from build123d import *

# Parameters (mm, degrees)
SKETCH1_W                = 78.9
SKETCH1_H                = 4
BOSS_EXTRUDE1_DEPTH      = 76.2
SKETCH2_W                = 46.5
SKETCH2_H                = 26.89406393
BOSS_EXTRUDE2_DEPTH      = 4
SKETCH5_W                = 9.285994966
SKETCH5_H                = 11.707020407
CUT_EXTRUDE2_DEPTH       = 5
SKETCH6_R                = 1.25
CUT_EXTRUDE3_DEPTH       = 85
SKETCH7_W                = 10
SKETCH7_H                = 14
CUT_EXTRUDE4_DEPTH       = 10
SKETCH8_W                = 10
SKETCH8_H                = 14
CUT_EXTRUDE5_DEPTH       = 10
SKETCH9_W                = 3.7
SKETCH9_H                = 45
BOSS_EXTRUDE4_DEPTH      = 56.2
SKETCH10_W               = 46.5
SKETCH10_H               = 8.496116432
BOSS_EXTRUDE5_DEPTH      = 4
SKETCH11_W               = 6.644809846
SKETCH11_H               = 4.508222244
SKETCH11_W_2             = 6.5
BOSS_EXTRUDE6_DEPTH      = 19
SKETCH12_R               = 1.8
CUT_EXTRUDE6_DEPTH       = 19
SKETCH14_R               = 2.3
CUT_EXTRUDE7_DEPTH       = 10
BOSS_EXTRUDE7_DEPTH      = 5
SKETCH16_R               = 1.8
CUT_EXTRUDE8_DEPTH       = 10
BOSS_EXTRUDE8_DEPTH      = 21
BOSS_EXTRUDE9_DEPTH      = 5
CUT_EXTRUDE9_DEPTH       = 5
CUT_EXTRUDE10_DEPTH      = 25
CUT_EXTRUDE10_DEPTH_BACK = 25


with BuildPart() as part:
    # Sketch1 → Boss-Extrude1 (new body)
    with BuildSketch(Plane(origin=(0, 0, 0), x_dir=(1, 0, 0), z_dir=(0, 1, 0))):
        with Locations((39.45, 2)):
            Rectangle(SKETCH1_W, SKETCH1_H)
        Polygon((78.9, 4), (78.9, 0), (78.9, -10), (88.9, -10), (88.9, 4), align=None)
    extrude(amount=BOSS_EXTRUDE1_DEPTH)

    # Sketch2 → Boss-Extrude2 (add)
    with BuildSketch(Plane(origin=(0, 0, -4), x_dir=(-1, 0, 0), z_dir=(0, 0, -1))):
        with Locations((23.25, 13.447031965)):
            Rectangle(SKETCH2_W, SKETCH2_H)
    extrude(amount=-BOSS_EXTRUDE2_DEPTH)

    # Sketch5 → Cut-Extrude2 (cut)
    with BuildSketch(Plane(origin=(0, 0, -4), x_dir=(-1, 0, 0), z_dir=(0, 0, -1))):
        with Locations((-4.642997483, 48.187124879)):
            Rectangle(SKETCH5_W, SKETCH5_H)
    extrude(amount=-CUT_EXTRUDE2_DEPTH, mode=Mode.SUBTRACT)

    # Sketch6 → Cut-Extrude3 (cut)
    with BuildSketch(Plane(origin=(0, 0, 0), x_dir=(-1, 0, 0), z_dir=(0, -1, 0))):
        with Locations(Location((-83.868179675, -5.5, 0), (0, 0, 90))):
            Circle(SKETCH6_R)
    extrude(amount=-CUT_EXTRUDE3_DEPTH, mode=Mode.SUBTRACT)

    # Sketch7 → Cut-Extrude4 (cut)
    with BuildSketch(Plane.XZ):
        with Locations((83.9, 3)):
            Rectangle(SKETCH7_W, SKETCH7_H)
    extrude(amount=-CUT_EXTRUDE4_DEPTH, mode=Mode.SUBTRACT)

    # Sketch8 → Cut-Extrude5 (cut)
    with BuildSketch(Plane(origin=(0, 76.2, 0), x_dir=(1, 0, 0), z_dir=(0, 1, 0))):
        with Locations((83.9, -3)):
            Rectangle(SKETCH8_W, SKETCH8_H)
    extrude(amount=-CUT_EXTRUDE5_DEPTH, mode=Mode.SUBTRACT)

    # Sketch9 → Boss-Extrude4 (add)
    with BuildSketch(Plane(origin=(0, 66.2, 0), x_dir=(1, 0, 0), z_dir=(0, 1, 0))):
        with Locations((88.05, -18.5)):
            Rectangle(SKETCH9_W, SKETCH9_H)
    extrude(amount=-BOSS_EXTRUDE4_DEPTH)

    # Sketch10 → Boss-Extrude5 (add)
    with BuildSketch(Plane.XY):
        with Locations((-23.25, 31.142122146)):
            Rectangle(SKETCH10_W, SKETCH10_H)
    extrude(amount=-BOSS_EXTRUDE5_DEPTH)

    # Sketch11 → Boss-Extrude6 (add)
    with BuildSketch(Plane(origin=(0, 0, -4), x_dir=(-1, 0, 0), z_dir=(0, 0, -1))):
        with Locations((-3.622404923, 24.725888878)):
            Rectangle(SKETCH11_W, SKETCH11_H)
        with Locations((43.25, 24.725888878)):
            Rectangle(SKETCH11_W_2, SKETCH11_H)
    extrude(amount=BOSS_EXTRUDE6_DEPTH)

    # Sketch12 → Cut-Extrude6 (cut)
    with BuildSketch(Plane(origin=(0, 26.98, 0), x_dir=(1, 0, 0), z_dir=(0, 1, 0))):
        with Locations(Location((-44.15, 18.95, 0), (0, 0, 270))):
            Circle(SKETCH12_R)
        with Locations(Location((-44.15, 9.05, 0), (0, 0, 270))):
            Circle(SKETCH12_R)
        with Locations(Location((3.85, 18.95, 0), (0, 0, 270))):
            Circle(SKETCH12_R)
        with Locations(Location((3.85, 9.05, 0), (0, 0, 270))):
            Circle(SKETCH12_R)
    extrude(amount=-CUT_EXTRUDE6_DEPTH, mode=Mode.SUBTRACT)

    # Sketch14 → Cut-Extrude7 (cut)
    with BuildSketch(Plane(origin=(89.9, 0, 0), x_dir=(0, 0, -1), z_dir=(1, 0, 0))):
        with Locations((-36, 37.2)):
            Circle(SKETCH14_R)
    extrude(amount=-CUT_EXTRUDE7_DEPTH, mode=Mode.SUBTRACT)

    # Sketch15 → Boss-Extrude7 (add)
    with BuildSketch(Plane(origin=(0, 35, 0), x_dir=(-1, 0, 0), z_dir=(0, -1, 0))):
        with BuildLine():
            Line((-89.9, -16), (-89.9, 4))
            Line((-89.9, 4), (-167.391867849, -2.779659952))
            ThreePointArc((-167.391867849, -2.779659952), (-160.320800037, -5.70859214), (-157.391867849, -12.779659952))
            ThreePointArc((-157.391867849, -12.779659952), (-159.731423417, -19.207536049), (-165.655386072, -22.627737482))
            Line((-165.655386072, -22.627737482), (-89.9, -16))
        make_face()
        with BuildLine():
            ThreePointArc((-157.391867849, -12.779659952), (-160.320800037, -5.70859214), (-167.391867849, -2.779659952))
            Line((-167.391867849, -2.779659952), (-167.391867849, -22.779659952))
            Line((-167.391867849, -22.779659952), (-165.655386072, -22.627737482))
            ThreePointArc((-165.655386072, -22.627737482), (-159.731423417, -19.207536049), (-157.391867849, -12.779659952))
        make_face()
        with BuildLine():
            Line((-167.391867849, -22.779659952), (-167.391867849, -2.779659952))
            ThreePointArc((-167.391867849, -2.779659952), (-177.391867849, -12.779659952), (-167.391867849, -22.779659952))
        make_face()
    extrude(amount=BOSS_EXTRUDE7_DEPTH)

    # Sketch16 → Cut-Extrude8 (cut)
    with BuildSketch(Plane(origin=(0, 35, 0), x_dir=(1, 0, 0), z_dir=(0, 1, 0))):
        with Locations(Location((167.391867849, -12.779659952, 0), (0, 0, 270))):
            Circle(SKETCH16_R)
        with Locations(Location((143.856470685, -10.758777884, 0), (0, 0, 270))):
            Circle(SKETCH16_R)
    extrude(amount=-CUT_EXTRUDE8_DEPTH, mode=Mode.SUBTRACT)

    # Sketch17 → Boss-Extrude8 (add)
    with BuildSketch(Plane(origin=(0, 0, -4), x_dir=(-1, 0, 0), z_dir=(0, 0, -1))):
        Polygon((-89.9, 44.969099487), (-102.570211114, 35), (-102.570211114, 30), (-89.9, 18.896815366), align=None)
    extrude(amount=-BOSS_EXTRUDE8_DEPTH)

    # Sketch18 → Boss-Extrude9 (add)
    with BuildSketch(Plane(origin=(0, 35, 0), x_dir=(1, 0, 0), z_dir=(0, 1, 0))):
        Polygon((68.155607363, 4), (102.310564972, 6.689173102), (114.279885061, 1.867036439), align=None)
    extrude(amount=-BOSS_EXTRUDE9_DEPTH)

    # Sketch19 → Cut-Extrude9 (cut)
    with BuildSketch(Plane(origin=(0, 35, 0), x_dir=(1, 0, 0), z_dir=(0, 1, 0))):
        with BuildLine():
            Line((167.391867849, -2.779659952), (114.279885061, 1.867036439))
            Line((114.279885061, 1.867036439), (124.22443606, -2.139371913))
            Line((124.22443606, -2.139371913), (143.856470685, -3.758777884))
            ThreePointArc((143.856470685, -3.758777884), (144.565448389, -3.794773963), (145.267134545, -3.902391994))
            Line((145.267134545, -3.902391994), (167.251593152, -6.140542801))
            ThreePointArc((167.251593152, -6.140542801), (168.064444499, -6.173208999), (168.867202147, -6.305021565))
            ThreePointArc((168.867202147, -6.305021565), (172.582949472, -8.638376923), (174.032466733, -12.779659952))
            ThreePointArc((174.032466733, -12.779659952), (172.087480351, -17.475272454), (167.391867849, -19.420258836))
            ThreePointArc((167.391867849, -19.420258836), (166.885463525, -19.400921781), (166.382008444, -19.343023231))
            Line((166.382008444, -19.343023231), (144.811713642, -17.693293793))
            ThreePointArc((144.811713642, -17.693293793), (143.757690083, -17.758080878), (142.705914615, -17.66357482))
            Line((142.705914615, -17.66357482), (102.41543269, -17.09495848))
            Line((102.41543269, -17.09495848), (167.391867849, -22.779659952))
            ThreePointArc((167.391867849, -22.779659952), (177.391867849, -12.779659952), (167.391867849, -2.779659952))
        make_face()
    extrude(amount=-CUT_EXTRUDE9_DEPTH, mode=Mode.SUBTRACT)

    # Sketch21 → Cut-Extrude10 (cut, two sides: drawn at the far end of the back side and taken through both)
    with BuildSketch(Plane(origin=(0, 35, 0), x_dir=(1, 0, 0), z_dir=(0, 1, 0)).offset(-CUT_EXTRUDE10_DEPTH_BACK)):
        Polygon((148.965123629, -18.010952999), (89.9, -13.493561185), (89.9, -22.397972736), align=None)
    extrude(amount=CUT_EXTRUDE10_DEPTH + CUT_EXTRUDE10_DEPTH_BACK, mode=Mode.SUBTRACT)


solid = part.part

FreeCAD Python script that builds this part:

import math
import FreeCAD as App
import Part
import Sketcher

V = App.Vector
Q = App.Units.Quantity

doc = App.newDocument("Part")
body = doc.addObject("PartDesign::Body", "Body")

sketch1 = doc.addObject("Sketcher::SketchObject", "Sketch")
body.addObject(sketch1)
sketch1.AttachmentSupport = (doc.XZ_Plane, [""])
sketch1.MapMode = "FlatFace"
sketch1.addGeometry(Part.LineSegment(V(0, -4, 0), V(0, 0, 0)), False)
sketch1.addGeometry(Part.LineSegment(V(0, 0, 0), V(78.9, 0, 0)), False)
sketch1.addGeometry(Part.LineSegment(V(78.9, 0, 0), V(78.9, 10, 0)), False)
sketch1.addGeometry(Part.LineSegment(V(78.9, 10, 0), V(88.9, 10, 0)), False)
sketch1.addGeometry(Part.LineSegment(V(88.9, 10, 0), V(88.9, -4, 0)), False)
sketch1.addGeometry(Part.LineSegment(V(88.9, -4, 0), V(0, -4, 0)), False)
sketch1.addConstraint(Sketcher.Constraint("Coincident", 0, 2, 1, 1))
sketch1.addConstraint(Sketcher.Constraint("Coincident", 1, 2, 2, 1))
sketch1.addConstraint(Sketcher.Constraint("Coincident", 2, 2, 3, 1))
sketch1.addConstraint(Sketcher.Constraint("Coincident", 3, 2, 4, 1))
sketch1.addConstraint(Sketcher.Constraint("Coincident", 4, 2, 5, 1))
sketch1.addConstraint(Sketcher.Constraint("Coincident", 5, 2, 0, 1))
sketch1.addConstraint(Sketcher.Constraint("Vertical", 0))
sketch1.addConstraint(Sketcher.Constraint("Horizontal", 1))
sketch1.addConstraint(Sketcher.Constraint("Vertical", 2))
sketch1.addConstraint(Sketcher.Constraint("Horizontal", 3))
sketch1.addConstraint(Sketcher.Constraint("Vertical", 4))
sketch1.addConstraint(Sketcher.Constraint("Horizontal", 5))
sketch1.addConstraint(Sketcher.Constraint("Coincident", 0, 2, -1, 1))
sketch1.addConstraint(Sketcher.Constraint("Equal", 3, 2))
sketch1.addConstraint(Sketcher.Constraint("DistanceX", 3, 1, 3, 2, Q("10 mm")))
sketch1.addConstraint(Sketcher.Constraint("DistanceY", 0, 1, 0, 2, Q("4 mm")))
sketch1.addConstraint(Sketcher.Constraint("DistanceX", 1, 1, 1, 2, Q("78.9 mm")))
pad1 = doc.addObject("PartDesign::Pad", "Pad")
body.addObject(pad1)
pad1.Profile = sketch1
pad1.Length = 76.2
pad1.Reversed = True

sketch2 = doc.addObject("Sketcher::SketchObject", "Sketch001")
body.addObject(sketch2)
sketch2.AttachmentSupport = (doc.XY_Plane, [""])
sketch2.MapMode = "FlatFace"
sketch2.AttachmentOffset = App.Placement(V(0, 0, -4), App.Rotation())
sketch2.addGeometry(Part.LineSegment(V(0, 27, 0), V(0, 0, 0)), False)
sketch2.addGeometry(Part.LineSegment(V(0, 0, 0), V(-46, 0, 0)), False)
sketch2.addGeometry(Part.LineSegment(V(-46, 0, 0), V(-46, 27, 0)), False)
sketch2.addGeometry(Part.LineSegment(V(-46, 27, 0), V(0, 27, 0)), False)
sketch2.addConstraint(Sketcher.Constraint("Coincident", 0, 2, 1, 1))
sketch2.addConstraint(Sketcher.Constraint("Coincident", 1, 2, 2, 1))
sketch2.addConstraint(Sketcher.Constraint("Coincident", 2, 2, 3, 1))
sketch2.addConstraint(Sketcher.Constraint("Coincident", 3, 2, 0, 1))
sketch2.addConstraint(Sketcher.Constraint("Vertical", 0))
sketch2.addConstraint(Sketcher.Constraint("Horizontal", 1))
sketch2.addConstraint(Sketcher.Constraint("Vertical", 2))
sketch2.addConstraint(Sketcher.Constraint("Horizontal", 3))
sketch2.addConstraint(Sketcher.Constraint("Coincident", 0, 2, -1, 1))
sketch2.addConstraint(Sketcher.Constraint("DistanceX", 1, 2, 1, 1, Q("46.5 mm")))
sketch2.addConstraint(Sketcher.Constraint("DistanceY", 0, 2, 0, 1, Q("26.894064 mm")))
pad2 = doc.addObject("PartDesign::Pad", "Pad001")
body.addObject(pad2)
pad2.Profile = sketch2
pad2.Length = 4

sketch3 = doc.addObject("Sketcher::SketchObject", "Sketch002")
body.addObject(sketch3)
sketch3.AttachmentSupport = (doc.XY_Plane, [""])
sketch3.MapMode = "FlatFace"
sketch3.AttachmentOffset = App.Placement(V(0, 0, -4), App.Rotation())
sketch3.addGeometry(Part.LineSegment(V(9, 54, 0), V(9, 42, 0)), False)
sketch3.addGeometry(Part.LineSegment(V(9, 42, 0), V(0, 42, 0)), False)
sketch3.addGeometry(Part.LineSegment(V(0, 42, 0), V(0, 54, 0)), False)
sketch3.addGeometry(Part.LineSegment(V(0, 54, 0), V(9, 54, 0)), False)
sketch3.addConstraint(Sketcher.Constraint("Coincident", 0, 2, 1, 1))
sketch3.addConstraint(Sketcher.Constraint("Coincident", 1, 2, 2, 1))
sketch3.addConstraint(Sketcher.Constraint("Coincident", 2, 2, 3, 1))
sketch3.addConstraint(Sketcher.Constraint("Coincident", 3, 2, 0, 1))
sketch3.addConstraint(Sketcher.Constraint("Vertical", 0))
sketch3.addConstraint(Sketcher.Constraint("Horizontal", 1))
sketch3.addConstraint(Sketcher.Constraint("Vertical", 2))
sketch3.addConstraint(Sketcher.Constraint("Horizontal", 3))
sketch3.addConstraint(Sketcher.Constraint("PointOnObject", 1, 2, -2))
sketch3.addConstraint(Sketcher.Constraint("DistanceY", 0, 2, 0, 1, Q("11.70702 mm")))
sketch3.addConstraint(Sketcher.Constraint("DistanceX", 1, 2, 1, 1, Q("9.285995 mm")))
sketch3.addConstraint(Sketcher.Constraint("DistanceY", -1, 1, 0, 2, Q("42.333615 mm")))
pocket1 = doc.addObject("PartDesign::Pocket", "Pocket")
body.addObject(pocket1)
pocket1.Profile = sketch3
pocket1.Length = 5
pocket1.Reversed = True

sketch4 = doc.addObject("Sketcher::SketchObject", "Sketch003")
body.addObject(sketch4)
sketch4.AttachmentSupport = (doc.XZ_Plane, [""])
sketch4.MapMode = "FlatFace"
sketch4.addGeometry(Part.Circle(V(83.9, 5.5, 0), V(0, 0, 1), 1.2), False)
sketch4.addConstraint(Sketcher.Constraint("Diameter", 0, Q("2.5 mm")))
sketch4.addConstraint(Sketcher.Constraint("DistanceY", -1, 1, 0, 3, Q("5.5 mm")))
sketch4.addConstraint(Sketcher.Constraint("DistanceX", -1, 1, 0, 3, Q("83.86818 mm")))
pocket2 = doc.addObject("PartDesign::Pocket", "Pocket001")
body.addObject(pocket2)
pocket2.Profile = sketch4
pocket2.Length = 85

sketch5 = doc.addObject("Sketcher::SketchObject", "Sketch004")
body.addObject(sketch5)
sketch5.AttachmentSupport = (doc.XZ_Plane, [""])
sketch5.MapMode = "FlatFace"
sketch5.addGeometry(Part.LineSegment(V(79, 10, 0), V(79, -4, 0)), False)
sketch5.addGeometry(Part.LineSegment(V(79, -4, 0), V(89, -4, 0)), False)
sketch5.addGeometry(Part.LineSegment(V(89, -4, 0), V(89, 10, 0)), False)
sketch5.addGeometry(Part.LineSegment(V(89, 10, 0), V(79, 10, 0)), False)
sketch5.addConstraint(Sketcher.Constraint("Coincident", 0, 2, 1, 1))
sketch5.addConstraint(Sketcher.Constraint("Coincident", 1, 2, 2, 1))
sketch5.addConstraint(Sketcher.Constraint("Coincident", 2, 2, 3, 1))
sketch5.addConstraint(Sketcher.Constraint("Coincident", 3, 2, 0, 1))
sketch5.addConstraint(Sketcher.Constraint("Vertical", 0))
sketch5.addConstraint(Sketcher.Constraint("Horizontal", 1))
sketch5.addConstraint(Sketcher.Constraint("Vertical", 2))
sketch5.addConstraint(Sketcher.Constraint("Horizontal", 3))
sketch5.addConstraint(Sketcher.Constraint("DistanceX", 1, 1, 1, 2, Q("10 mm")))
sketch5.addConstraint(Sketcher.Constraint("DistanceY", 0, 2, 0, 1, Q("14 mm")))
sketch5.addConstraint(Sketcher.Constraint("DistanceY", 0, 2, -1, 1, Q("4 mm")))
sketch5.addConstraint(Sketcher.Constraint("DistanceX", -1, 1, 0, 2, Q("78.9 mm")))
pocket3 = doc.addObject("PartDesign::Pocket", "Pocket002")
body.addObject(pocket3)
pocket3.Profile = sketch5
pocket3.Length = 10

sketch6 = doc.addObject("Sketcher::SketchObject", "Sketch005")
body.addObject(sketch6)
sketch6.AttachmentSupport = (doc.XZ_Plane, [""])
sketch6.MapMode = "FlatFace"
sketch6.AttachmentOffset = App.Placement(V(0, 0, -76.2), App.Rotation())
sketch6.addGeometry(Part.LineSegment(V(79, -4, 0), V(79, 10, 0)), False)
sketch6.addGeometry(Part.LineSegment(V(79, 10, 0), V(89, 10, 0)), False)
sketch6.addGeometry(Part.LineSegment(V(89, 10, 0), V(89, -4, 0)), False)
sketch6.addGeometry(Part.LineSegment(V(89, -4, 0), V(79, -4, 0)), False)
sketch6.addConstraint(Sketcher.Constraint("Coincident", 0, 2, 1, 1))
sketch6.addConstraint(Sketcher.Constraint("Coincident", 1, 2, 2, 1))
sketch6.addConstraint(Sketcher.Constraint("Coincident", 2, 2, 3, 1))
sketch6.addConstraint(Sketcher.Constraint("Coincident", 3, 2, 0, 1))
sketch6.addConstraint(Sketcher.Constraint("Vertical", 0))
sketch6.addConstraint(Sketcher.Constraint("Horizontal", 1))
sketch6.addConstraint(Sketcher.Constraint("Vertical", 2))
sketch6.addConstraint(Sketcher.Constraint("Horizontal", 3))
sketch6.addConstraint(Sketcher.Constraint("DistanceX", 1, 1, 1, 2, Q("10 mm")))
sketch6.addConstraint(Sketcher.Constraint("DistanceY", 0, 1, 0, 2, Q("14 mm")))
sketch6.addConstraint(Sketcher.Constraint("DistanceY", -1, 1, 0, 2, Q("10 mm")))
sketch6.addConstraint(Sketcher.Constraint("DistanceX", -1, 1, 0, 2, Q("78.9 mm")))
pocket4 = doc.addObject("PartDesign::Pocket", "Pocket003")
body.addObject(pocket4)
pocket4.Profile = sketch6
pocket4.Length = 10
pocket4.Reversed = True

sketch7 = doc.addObject("Sketcher::SketchObject", "Sketch006")
body.addObject(sketch7)
sketch7.AttachmentSupport = (doc.XZ_Plane, [""])
sketch7.MapMode = "FlatFace"
sketch7.AttachmentOffset = App.Placement(V(0, 0, -66.2), App.Rotation())
sketch7.addGeometry(Part.LineSegment(V(86.2, -4, 0), V(86.2, 41, 0)), False)
sketch7.addGeometry(Part.LineSegment(V(86.2, 41, 0), V(89.9, 41, 0)), False)
sketch7.addGeometry(Part.LineSegment(V(89.9, 41, 0), V(89.9, -4, 0)), False)
sketch7.addGeometry(Part.LineSegment(V(89.9, -4, 0), V(86.2, -4, 0)), False)
sketch7.addConstraint(Sketcher.Constraint("Coincident", 0, 2, 1, 1))
sketch7.addConstraint(Sketcher.Constraint("Coincident", 1, 2, 2, 1))
sketch7.addConstraint(Sketcher.Constraint("Coincident", 2, 2, 3, 1))
sketch7.addConstraint(Sketcher.Constraint("Coincident", 3, 2, 0, 1))
sketch7.addConstraint(Sketcher.Constraint("Vertical", 0))
sketch7.addConstraint(Sketcher.Constraint("Horizontal", 1))
sketch7.addConstraint(Sketcher.Constraint("Vertical", 2))
sketch7.addConstraint(Sketcher.Constraint("Horizontal", 3))
sketch7.addConstraint(Sketcher.Constraint("DistanceY", 0, 1, 0, 2, Q("45 mm")))
sketch7.addConstraint(Sketcher.Constraint("DistanceX", 1, 1, 1, 2, Q("3.7 mm")))
sketch7.addConstraint(Sketcher.Constraint("DistanceY", -1, 1, 0, 2, Q("41 mm")))
sketch7.addConstraint(Sketcher.Constraint("DistanceX", -1, 1, 0, 2, Q("86.2 mm")))
pad3 = doc.addObject("PartDesign::Pad", "Pad002")
body.addObject(pad3)
pad3.Profile = sketch7
pad3.Length = 56.2

sketch8 = doc.addObject("Sketcher::SketchObject", "Sketch007")
body.addObject(sketch8)
sketch8.AttachmentSupport = (doc.XY_Plane, [""])
sketch8.MapMode = "FlatFace"
sketch8.addGeometry(Part.LineSegment(V(-46, 35, 0), V(-46, 27, 0)), False)
sketch8.addGeometry(Part.LineSegment(V(-46, 27, 0), V(0, 27, 0)), False)
sketch8.addGeometry(Part.LineSegment(V(0, 27, 0), V(0, 35, 0)), False)
sketch8.addGeometry(Part.LineSegment(V(0, 35, 0), V(-46, 35, 0)), False)
sketch8.addConstraint(Sketcher.Constraint("Coincident", 0, 2, 1, 1))
sketch8.addConstraint(Sketcher.Constraint("Coincident", 1, 2, 2, 1))
sketch8.addConstraint(Sketcher.Constraint("Coincident", 2, 2, 3, 1))
sketch8.addConstraint(Sketcher.Constraint("Coincident", 3, 2, 0, 1))
sketch8.addConstraint(Sketcher.Constraint("Vertical", 0))
sketch8.addConstraint(Sketcher.Constraint("Horizontal", 1))
sketch8.addConstraint(Sketcher.Constraint("Vertical", 2))
sketch8.addConstraint(Sketcher.Constraint("Horizontal", 3))
sketch8.addConstraint(Sketcher.Constraint("PointOnObject", 1, 2, -2))
sketch8.addConstraint(Sketcher.Constraint("DistanceX", 1, 1, 1, 2, Q("46.5 mm")))
sketch8.addConstraint(Sketcher.Constraint("DistanceY", 0, 2, 0, 1, Q("8.496116 mm")))
sketch8.addConstraint(Sketcher.Constraint("DistanceY", -1, 1, 2, 2, Q("35.39018 mm")))
pad4 = doc.addObject("PartDesign::Pad", "Pad003")
body.addObject(pad4)
pad4.Profile = sketch8
pad4.Length = 4
pad4.Reversed = True

sketch9 = doc.addObject("Sketcher::SketchObject", "Sketch008")
body.addObject(sketch9)
sketch9.AttachmentSupport = (doc.XY_Plane, [""])
sketch9.MapMode = "FlatFace"
sketch9.AttachmentOffset = App.Placement(V(0, 0, -4), App.Rotation())
sketch9.addGeometry(Part.LineSegment(V(6.9, 27, 0), V(6.9, 22.5, 0)), False)
sketch9.addGeometry(Part.LineSegment(V(6.9, 22.5, 0), V(0.3, 22.5, 0)), False)
sketch9.addGeometry(Part.LineSegment(V(0.3, 22.5, 0), V(0.3, 27, 0)), False)
sketch9.addGeometry(Part.LineSegment(V(0.3, 27, 0), V(6.9, 27, 0)), False)
sketch9.addGeometry(Part.LineSegment(V(-40, 27, 0), V(-40, 22.5, 0)), False)
sketch9.addGeometry(Part.LineSegment(V(-40, 22.5, 0), V(-46.5, 22.5, 0)), False)
sketch9.addGeometry(Part.LineSegment(V(-46.5, 22.5, 0), V(-46.5, 27, 0)), False)
sketch9.addGeometry(Part.LineSegment(V(-46.5, 27, 0), V(-40, 27, 0)), False)
sketch9.addConstraint(Sketcher.Constraint("Coincident", 0, 2, 1, 1))
sketch9.addConstraint(Sketcher.Constraint("Coincident", 1, 2, 2, 1))
sketch9.addConstraint(Sketcher.Constraint("Coincident", 2, 2, 3, 1))
sketch9.addConstraint(Sketcher.Constraint("Coincident", 3, 2, 0, 1))
sketch9.addConstraint(Sketcher.Constraint("Coincident", 4, 2, 5, 1))
sketch9.addConstraint(Sketcher.Constraint("Coincident", 5, 2, 6, 1))
sketch9.addConstraint(Sketcher.Constraint("Coincident", 6, 2, 7, 1))
sketch9.addConstraint(Sketcher.Constraint("Coincident", 7, 2, 4, 1))
sketch9.addConstraint(Sketcher.Constraint("Vertical", 0))
sketch9.addConstraint(Sketcher.Constraint("Horizontal", 1))
sketch9.addConstraint(Sketcher.Constraint("Vertical", 2))
sketch9.addConstraint(Sketcher.Constraint("Horizontal", 3))
sketch9.addConstraint(Sketcher.Constraint("Vertical", 4))
sketch9.addConstraint(Sketcher.Constraint("Horizontal", 5))
sketch9.addConstraint(Sketcher.Constraint("Vertical", 6))
sketch9.addConstraint(Sketcher.Constraint("Horizontal", 7))
sketch9.addConstraint(Sketcher.Constraint("Horizontal", 1, 2, 4, 2))
sketch9.addConstraint(Sketcher.Constraint("Horizontal", 3, 2, 6, 2))
sketch9.addConstraint(Sketcher.Constraint("DistanceX", 5, 2, 5, 1, Q("6.5 mm")))
sketch9.addConstraint(Sketcher.Constraint("DistanceX", 4, 2, -1, 1, Q("40 mm")))
sketch9.addConstraint(Sketcher.Constraint("DistanceX", -1, 1, 1, 2, Q("0.3 mm")))
sketch9.addConstraint(Sketcher.Constraint("DistanceY", -1, 1, 2, 2, Q("26.98 mm")))
sketch9.addConstraint(Sketcher.Constraint("DistanceX", 1, 2, 1, 1, Q("6.64481 mm")))
sketch9.addConstraint(Sketcher.Constraint("DistanceY", 0, 2, 0, 1, Q("4.508222 mm")))
pad5 = doc.addObject("PartDesign::Pad", "Pad004")
body.addObject(pad5)
pad5.Profile = sketch9
pad5.Length = 19
pad5.Reversed = True

sketch10 = doc.addObject("Sketcher::SketchObject", "Sketch009")
body.addObject(sketch10)
sketch10.AttachmentSupport = (doc.XZ_Plane, [""])
sketch10.MapMode = "FlatFace"
sketch10.AttachmentOffset = App.Placement(V(0, 0, -26.98), App.Rotation())
sketch10.addGeometry(Part.Circle(V(-44.1, -18.9, 0), V(0, 0, 1), 1.8), False)
sketch10.addGeometry(Part.Circle(V(-44.1, -9.1, 0), V(0, 0, 1), 1.8), False)
sketch10.addGeometry(Part.Circle(V(3.9, -18.9, 0), V(0, 0, 1), 1.8), False)
sketch10.addGeometry(Part.Circle(V(3.9, -9.1, 0), V(0, 0, 1), 1.8), False)
sketch10.addConstraint(Sketcher.Constraint("Equal", 0, 1))
sketch10.addConstraint(Sketcher.Constraint("Equal", 1, 2))
sketch10.addConstraint(Sketcher.Constraint("Equal", 2, 3))
sketch10.addConstraint(Sketcher.Constraint("Horizontal", 0, 3, 2, 3))
sketch10.addConstraint(Sketcher.Constraint("Horizontal", 1, 3, 3, 3))
sketch10.addConstraint(Sketcher.Constraint("Vertical", 0, 3, 1, 3))
sketch10.addConstraint(Sketcher.Constraint("Vertical", 2, 3, 3, 3))
sketch10.addConstraint(Sketcher.Constraint("Diameter", 0, Q("3.6 mm")))
sketch10.addConstraint(Sketcher.Constraint("DistanceX", 0, 3, 2, 3, Q("48 mm")))
sketch10.addConstraint(Sketcher.Constraint("DistanceY", 0, 3, 1, 3, Q("9.9 mm")))
sketch10.addConstraint(Sketcher.Constraint("DistanceX", 0, 3, -1, 1, Q("44.15 mm")))
sketch10.addConstraint(Sketcher.Constraint("DistanceY", 0, 3, -1, 1, Q("18.95 mm")))
pocket5 = doc.addObject("PartDesign::Pocket", "Pocket004")
body.addObject(pocket5)
pocket5.Profile = sketch10
pocket5.Length = 19
pocket5.Reversed = True

sketch11 = doc.addObject("Sketcher::SketchObject", "Sketch010")
body.addObject(sketch11)
sketch11.AttachmentSupport = (doc.YZ_Plane, [""])
sketch11.MapMode = "FlatFace"
sketch11.AttachmentOffset = App.Placement(V(0, 0, 89.9), App.Rotation())
sketch11.addGeometry(Part.Circle(V(37.2, 36, 0), V(0, 0, 1), 2.3), False)
sketch11.addConstraint(Sketcher.Constraint("Diameter", 0, Q("4.6 mm")))
sketch11.addConstraint(Sketcher.Constraint("DistanceY", -1, 1, 0, 3, Q("36 mm")))
sketch11.addConstraint(Sketcher.Constraint("DistanceX", -1, 1, 0, 3, Q("37.2 mm")))
pocket6 = doc.addObject("PartDesign::Pocket", "Pocket005")
body.addObject(pocket6)
pocket6.Profile = sketch11
pocket6.Length = 10

sketch12 = doc.addObject("Sketcher::SketchObject", "Sketch011")
body.addObject(sketch12)
sketch12.AttachmentSupport = (doc.XZ_Plane, [""])
sketch12.MapMode = "FlatFace"
sketch12.AttachmentOffset = App.Placement(V(0, 0, -35), App.Rotation())
sketch12.addGeometry(Part.LineSegment(V(89.9, 16, 0), V(89.9, -4, 0)), False)
sketch12.addGeometry(Part.LineSegment(V(89.9, -4, 0), V(167.4, 2.8, 0)), False)
sketch12.addGeometry(Part.ArcOfCircle(Part.Circle(V(167.4, 12.8, 0), V(0, 0, 1), 10), math.radians(-90), math.radians(90)), False)
sketch12.addGeometry(Part.LineSegment(V(167.4, 22.8, 0), V(165.7, 22.6, 0)), False)
sketch12.addGeometry(Part.LineSegment(V(165.7, 22.6, 0), V(89.9, 16, 0)), False)
sketch12.addConstraint(Sketcher.Constraint("Coincident", 0, 2, 1, 1))
sketch12.addConstraint(Sketcher.Constraint("Coincident", 1, 2, 2, 1))
sketch12.addConstraint(Sketcher.Constraint("Coincident", 2, 2, 3, 1))
sketch12.addConstraint(Sketcher.Constraint("Coincident", 3, 2, 4, 1))
sketch12.addConstraint(Sketcher.Constraint("Coincident", 4, 2, 0, 1))
sketch12.addConstraint(Sketcher.Constraint("Vertical", 0))
sketch12.addConstraint(Sketcher.Constraint("Parallel", 1, 3))
sketch12.addConstraint(Sketcher.Constraint("Parallel", 3, 4))
sketch12.addConstraint(Sketcher.Constraint("Vertical", 2, 3, 1, 2))
sketch12.addConstraint(Sketcher.Constraint("Vertical", 1, 2, 2, 2))
sketch12.addConstraint(Sketcher.Constraint("Radius", 2, Q("10 mm")))
sketch12.addConstraint(Sketcher.Constraint("Angle", 1, Q("5 deg")))
sketch12.addConstraint(Sketcher.Constraint("DistanceY", 0, 2, -1, 1, Q("4 mm")))
sketch12.addConstraint(Sketcher.Constraint("DistanceX", -1, 1, 0, 2, Q("89.9 mm")))
sketch12.addConstraint(Sketcher.Constraint("Distance", 4, Q("76.044759 mm")))
sketch12.addConstraint(Sketcher.Constraint("DistanceY", -1, 1, 2, 3, Q("12.77966 mm")))
pad6 = doc.addObject("PartDesign::Pad", "Pad005")
body.addObject(pad6)
pad6.Profile = sketch12
pad6.Length = 5

sketch13 = doc.addObject("Sketcher::SketchObject", "Sketch012")
body.addObject(sketch13)
sketch13.AttachmentSupport = (doc.XZ_Plane, [""])
sketch13.MapMode = "FlatFace"
sketch13.AttachmentOffset = App.Placement(V(0, 0, -35), App.Rotation())
sketch13.addGeometry(Part.Circle(V(167.4, 12.8, 0), V(0, 0, 1), 1.8), False)
sketch13.addGeometry(Part.Circle(V(143.9, 10.8, 0), V(0, 0, 1), 1.8), False)
sketch13.addConstraint(Sketcher.Constraint("Equal", 0, 1))
sketch13.addConstraint(Sketcher.Constraint("Diameter", 0, Q("3.6 mm")))
sketch13.addConstraint(Sketcher.Constraint("DistanceY", -1, 1, 0, 3, Q("12.77966 mm")))
sketch13.addConstraint(Sketcher.Constraint("DistanceX", -1, 1, 1, 3, Q("143.856471 mm")))
sketch13.addConstraint(Sketcher.Constraint("DistanceX", -1, 1, 0, 3, Q("167.391868 mm")))
sketch13.addConstraint(Sketcher.Constraint("DistanceY", -1, 1, 1, 3, Q("10.758778 mm")))
pocket7 = doc.addObject("PartDesign::Pocket", "Pocket006")
body.addObject(pocket7)
pocket7.Profile = sketch13
pocket7.Length = 10
pocket7.Reversed = True

sketch14 = doc.addObject("Sketcher::SketchObject", "Sketch013")
body.addObject(sketch14)
sketch14.AttachmentSupport = (doc.XY_Plane, [""])
sketch14.MapMode = "FlatFace"
sketch14.AttachmentOffset = App.Placement(V(0, 0, -4), App.Rotation())
sketch14.addGeometry(Part.LineSegment(V(90, 45, 0), V(103, 35, 0)), False)
sketch14.addGeometry(Part.LineSegment(V(103, 35, 0), V(103, 30, 0)), False)
sketch14.addGeometry(Part.LineSegment(V(103, 30, 0), V(90, 19, 0)), False)
sketch14.addGeometry(Part.LineSegment(V(90, 19, 0), V(90, 45, 0)), False)
sketch14.addConstraint(Sketcher.Constraint("Coincident", 0, 2, 1, 1))
sketch14.addConstraint(Sketcher.Constraint("Coincident", 1, 2, 2, 1))
sketch14.addConstraint(Sketcher.Constraint("Coincident", 2, 2, 3, 1))
sketch14.addConstraint(Sketcher.Constraint("Coincident", 3, 2, 0, 1))
sketch14.addConstraint(Sketcher.Constraint("Vertical", 1))
sketch14.addConstraint(Sketcher.Constraint("Vertical", 3))
sketch14.addConstraint(Sketcher.Constraint("DistanceY", 1, 2, 1, 1, Q("5 mm")))
sketch14.addConstraint(Sketcher.Constraint("DistanceY", -1, 1, 0, 2, Q("35 mm")))
sketch14.addConstraint(Sketcher.Constraint("DistanceX", -1, 1, 2, 2, Q("89.9 mm")))
sketch14.addConstraint(Sketcher.Constraint("DistanceY", -1, 1, 3, 2, Q("44.969099 mm")))
sketch14.addConstraint(Sketcher.Constraint("Distance", 2, Q("16.846809 mm")))
sketch14.addConstraint(Sketcher.Constraint("DistanceY", 3, 1, 3, 2, Q("26.072284 mm")))
pad7 = doc.addObject("PartDesign::Pad", "Pad006")
body.addObject(pad7)
pad7.Profile = sketch14
pad7.Length = 21

sketch15 = doc.addObject("Sketcher::SketchObject", "Sketch014")
body.addObject(sketch15)
sketch15.AttachmentSupport = (doc.XZ_Plane, [""])
sketch15.MapMode = "FlatFace"
sketch15.AttachmentOffset = App.Placement(V(0, 0, -35), App.Rotation())
sketch15.addGeometry(Part.LineSegment(V(102, -7, 0), V(68, -4, 0)), False)
sketch15.addGeometry(Part.LineSegment(V(68, -4, 0), V(114, -2, 0)), False)
sketch15.addGeometry(Part.LineSegment(V(114, -2, 0), V(102, -7, 0)), False)
sketch15.addConstraint(Sketcher.Constraint("Coincident", 0, 2, 1, 1))
sketch15.addConstraint(Sketcher.Constraint("Coincident", 1, 2, 2, 1))
sketch15.addConstraint(Sketcher.Constraint("Coincident", 2, 2, 0, 1))
sketch15.addConstraint(Sketcher.Constraint("DistanceY", 0, 2, -1, 1, Q("4 mm")))
sketch15.addConstraint(Sketcher.Constraint("Distance", 0, Q("34.260659 mm")))
sketch15.addConstraint(Sketcher.Constraint("Distance", 1, Q("46.17357 mm")))
sketch15.addConstraint(Sketcher.Constraint("Distance", 2, Q("12.904171 mm")))
sketch15.addConstraint(Sketcher.Constraint("DistanceX", 2, 2, 1, 2, Q("11.96932 mm")))
sketch15.addConstraint(Sketcher.Constraint("DistanceX", -1, 1, 0, 2, Q("68.155607 mm")))
pad8 = doc.addObject("PartDesign::Pad", "Pad007")
body.addObject(pad8)
pad8.Profile = sketch15
pad8.Length = 5

sketch16 = doc.addObject("Sketcher::SketchObject", "Sketch015")
body.addObject(sketch16)
sketch16.AttachmentSupport = (doc.XZ_Plane, [""])
sketch16.MapMode = "FlatFace"
sketch16.AttachmentOffset = App.Placement(V(0, 0, -35), App.Rotation())
sketch16.addGeometry(Part.LineSegment(V(167.4, 2.8, 0), V(114.3, -1.9, 0)), False)
sketch16.addGeometry(Part.LineSegment(V(114.3, -1.9, 0), V(124.2, 2.1, 0)), False)
sketch16.addGeometry(Part.LineSegment(V(124.2, 2.1, 0), V(143.9, 3.8, 0)), False)
sketch16.addGeometry(Part.ArcOfCircle(Part.Circle(V(143.9, 10.8, 0), V(0, 0, 1), 7), math.radians(-90), math.radians(-78.37)), False)
sketch16.addGeometry(Part.LineSegment(V(145.3, 3.9, 0), V(167.3, 6.1, 0)), False)
sketch16.addGeometry(Part.ArcOfCircle(Part.Circle(V(167.4, 12.8, 0), V(0, 0, 1), 6.6), math.radians(-91.21), math.radians(-77.16)), False)
sketch16.addGeometry(Part.ArcOfCircle(Part.Circle(V(167.4, 12.8, 0), V(0, 0, 1), 6.6), math.radians(-77), math.radians(0)), False)
sketch16.addGeometry(Part.ArcOfCircle(Part.Circle(V(167.4, 12.8, 0), V(0, 0, 1), 6.6), math.radians(0), math.radians(90)), False)
sketch16.addGeometry(Part.ArcOfCircle(Part.Circle(V(167.4, 12.8, 0), V(0, 0, 1), 6.6), math.radians(90), math.radians(98.75)), False)
sketch16.addGeometry(Part.LineSegment(V(166.4, 19.3, 0), V(144.8, 17.7, 0)), False)
sketch16.addGeometry(Part.ArcOfCircle(Part.Circle(V(143.9, 10.8, 0), V(0, 0, 1), 7), math.radians(82.16), math.radians(99.46)), False)
sketch16.addGeometry(Part.LineSegment(V(142.7, 17.7, 0), V(102.4, 17.1, 0)), False)
sketch16.addGeometry(Part.LineSegment(V(102.4, 17.1, 0), V(167.4, 22.8, 0)), False)
sketch16.addGeometry(Part.ArcOfCircle(Part.Circle(V(167.4, 12.8, 0), V(0, 0, 1), 10), math.radians(-90), math.radians(90)), False)
sketch16.addConstraint(Sketcher.Constraint("Coincident", 0, 2, 1, 1))
sketch16.addConstraint(Sketcher.Constraint("Coincident", 1, 2, 2, 1))
sketch16.addConstraint(Sketcher.Constraint("Coincident", 2, 2, 3, 1))
sketch16.addConstraint(Sketcher.Constraint("Coincident", 3, 2, 4, 1))
sketch16.addConstraint(Sketcher.Constraint("Coincident", 4, 2, 5, 1))
sketch16.addConstraint(Sketcher.Constraint("Tangent", 5, 2, 6, 1))
sketch16.addConstraint(Sketcher.Constraint("Tangent", 6, 2, 7, 1))
sketch16.addConstraint(Sketcher.Constraint("Tangent", 7, 2, 8, 1))
sketch16.addConstraint(Sketcher.Constraint("Coincident", 8, 2, 9, 1))
sketch16.addConstraint(Sketcher.Constraint("Coincident", 9, 2, 10, 1))
sketch16.addConstraint(Sketcher.Constraint("Coincident", 10, 2, 11, 1))
sketch16.addConstraint(Sketcher.Constraint("Coincident", 11, 2, 12, 1))
sketch16.addConstraint(Sketcher.Constraint("Coincident", 12, 2, 13, 2))
sketch16.addConstraint(Sketcher.Constraint("Coincident", 13, 1, 0, 1))
sketch16.addConstraint(Sketcher.Constraint("Coincident", 7, 3, 5, 3))
sketch16.addConstraint(Sketcher.Constraint("Coincident", 10, 3, 3, 3))
sketch16.addConstraint(Sketcher.Constraint("Coincident", 13, 3, 5, 3))
sketch16.addConstraint(Sketcher.Constraint("Equal", 7, 8))
sketch16.addConstraint(Sketcher.Constraint("Equal", 3, 10))
sketch16.addConstraint(Sketcher.Constraint("Parallel", 0, 12))
sketch16.addConstraint(Sketcher.Constraint("Horizontal", 13, 3, 6, 2))
sketch16.addConstraint(Sketcher.Constraint("Vertical", 10, 3, 2, 2))
sketch16.addConstraint(Sketcher.Constraint("Vertical", 13, 3, 7, 2))
sketch16.addConstraint(Sketcher.Constraint("Vertical", 7, 2, 12, 2))
sketch16.addConstraint(Sketcher.Constraint("Vertical", 12, 2, 13, 1))
sketch16.addConstraint(Sketcher.Constraint("Radius", 3, Q("7 mm")))
sketch16.addConstraint(Sketcher.Constraint("Radius", 13, Q("10 mm")))
sketch16.addConstraint(Sketcher.Constraint("Angle", 0, Q("-175 deg")))
sketch16.addConstraint(Sketcher.Constraint("Radius", 5, Q("6.640599 mm")))
sketch16.addConstraint(Sketcher.Constraint("DistanceX", 1, 2, 3, 2, Q("21.042698 mm")))
sketch16.addConstraint(Sketcher.Constraint("DistanceY", 3, 2, 9, 2, Q("13.790902 mm")))
sketch16.addConstraint(Sketcher.Constraint("DistanceX", 10, 2, 9, 2, Q("2.105799 mm")))
sketch16.addConstraint(Sketcher.Constraint("Distance", 0, Q("53.314862 mm")))
sketch16.addConstraint(Sketcher.Constraint("Distance", 1, Q("10.721259 mm")))
sketch16.addConstraint(Sketcher.Constraint("Distance", 9, Q("21.63329 mm")))
sketch16.addConstraint(Sketcher.Constraint("DistanceX", -1, 1, 3, 3, Q("143.856471 mm")))
sketch16.addConstraint(Sketcher.Constraint("DistanceY", -1, 1, 5, 3, Q("12.77966 mm")))
sketch16.addConstraint(Sketcher.Constraint("DistanceY", -1, 1, 1, 2, Q("2.139372 mm")))
sketch16.addConstraint(Sketcher.Constraint("DistanceY", -1, 1, 3, 2, Q("3.902392 mm")))
sketch16.addConstraint(Sketcher.Constraint("DistanceY", -1, 1, 5, 2, Q("6.305022 mm")))
sketch16.addConstraint(Sketcher.Constraint("DistanceX", -1, 1, 8, 2, Q("166.382008 mm")))
sketch16.addConstraint(Sketcher.Constraint("DistanceY", -1, 1, 11, 2, Q("17.094958 mm")))
sketch16.addConstraint(Sketcher.Constraint("DistanceX", 4, 2, 5, 2, Q("1.615609 mm")))
pocket8 = doc.addObject("PartDesign::Pocket", "Pocket007")
body.addObject(pocket8)
pocket8.Profile = sketch16
pocket8.Length = 5
pocket8.Reversed = True

sketch17 = doc.addObject("Sketcher::SketchObject", "Sketch016")
body.addObject(sketch17)
sketch17.AttachmentSupport = (doc.XZ_Plane, [""])
sketch17.MapMode = "FlatFace"
sketch17.AttachmentOffset = App.Placement(V(0, 0, -35), App.Rotation())
sketch17.addGeometry(Part.LineSegment(V(149, 18, 0), V(90, 13, 0)), False)
sketch17.addGeometry(Part.LineSegment(V(90, 13, 0), V(90, 22, 0)), False)
sketch17.addGeometry(Part.LineSegment(V(90, 22, 0), V(149, 18, 0)), False)
sketch17.addConstraint(Sketcher.Constraint("Coincident", 0, 2, 1, 1))
sketch17.addConstraint(Sketcher.Constraint("Coincident", 1, 2, 2, 1))
sketch17.addConstraint(Sketcher.Constraint("Coincident", 2, 2, 0, 1))
sketch17.addConstraint(Sketcher.Constraint("Vertical", 1))
sketch17.addConstraint(Sketcher.Constraint("DistanceX", -1, 1, 0, 2, Q("89.9 mm")))
sketch17.addConstraint(Sketcher.Constraint("DistanceY", 1, 1, 1, 2, Q("8.904412 mm")))
sketch17.addConstraint(Sketcher.Constraint("Distance", 0, Q("59.23762 mm")))
sketch17.addConstraint(Sketcher.Constraint("Distance", 2, Q("59.227821 mm")))
sketch17.addConstraint(Sketcher.Constraint("DistanceY", -1, 1, 0, 2, Q("13.493561 mm")))
pocket9 = doc.addObject("PartDesign::Pocket", "Pocket008")
body.addObject(pocket9)
pocket9.Profile = sketch17
pocket9.Type = "ThroughAll"
pocket9.Midplane = True

doc.recompute()
